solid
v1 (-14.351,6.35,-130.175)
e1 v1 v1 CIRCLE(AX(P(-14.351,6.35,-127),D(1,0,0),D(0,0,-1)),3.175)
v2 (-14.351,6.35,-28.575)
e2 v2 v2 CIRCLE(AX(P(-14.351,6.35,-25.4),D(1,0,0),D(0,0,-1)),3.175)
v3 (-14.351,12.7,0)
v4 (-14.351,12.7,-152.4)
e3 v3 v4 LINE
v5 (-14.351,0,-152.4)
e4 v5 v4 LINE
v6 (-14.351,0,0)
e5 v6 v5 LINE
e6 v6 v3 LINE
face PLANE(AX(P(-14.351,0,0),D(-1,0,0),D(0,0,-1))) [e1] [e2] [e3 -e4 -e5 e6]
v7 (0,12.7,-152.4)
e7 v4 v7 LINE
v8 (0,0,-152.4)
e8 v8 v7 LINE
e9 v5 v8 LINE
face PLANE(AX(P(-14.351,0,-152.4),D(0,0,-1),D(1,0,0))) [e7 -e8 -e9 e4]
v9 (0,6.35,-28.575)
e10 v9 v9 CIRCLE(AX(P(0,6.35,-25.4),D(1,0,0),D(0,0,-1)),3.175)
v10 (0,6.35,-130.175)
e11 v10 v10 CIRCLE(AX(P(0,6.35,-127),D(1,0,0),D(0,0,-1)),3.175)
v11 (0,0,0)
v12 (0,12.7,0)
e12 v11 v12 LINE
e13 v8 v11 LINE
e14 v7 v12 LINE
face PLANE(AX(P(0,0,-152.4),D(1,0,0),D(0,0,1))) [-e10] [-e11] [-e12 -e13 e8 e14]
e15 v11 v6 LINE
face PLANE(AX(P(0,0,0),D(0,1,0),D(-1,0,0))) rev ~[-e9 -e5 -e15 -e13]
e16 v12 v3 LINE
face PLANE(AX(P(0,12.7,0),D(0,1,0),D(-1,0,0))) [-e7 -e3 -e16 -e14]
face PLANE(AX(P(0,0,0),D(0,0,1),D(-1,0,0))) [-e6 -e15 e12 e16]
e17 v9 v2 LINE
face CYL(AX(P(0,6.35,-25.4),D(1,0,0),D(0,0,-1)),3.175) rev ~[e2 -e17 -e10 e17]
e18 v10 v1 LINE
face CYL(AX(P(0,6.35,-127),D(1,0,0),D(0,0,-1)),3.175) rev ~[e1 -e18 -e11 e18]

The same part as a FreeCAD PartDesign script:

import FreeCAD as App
import Part
import Sketcher
from FreeCAD import Vector
Q = App.Units.Quantity

doc = App.newDocument("Part")
body = doc.addObject("PartDesign::Body", "Body")

sketch1 = doc.addObject("Sketcher::SketchObject", "Sketch")
body.addObject(sketch1)
sketch1.AttachmentSupport = (doc.XZ_Plane, [""])
sketch1.MapMode = "FlatFace"
sketch1.addGeometry([
    Part.LineSegment(Vector(-14, 0, 0), Vector(0, 0, 0)),
    Part.LineSegment(Vector(0, 0, 0), Vector(0, -152, 0)),
    Part.LineSegment(Vector(0, -152, 0), Vector(-14, -152, 0)),
    Part.LineSegment(Vector(-14, -152, 0), Vector(-14, 0, 0)),
], False)
sketch1.addConstraint([
    Sketcher.Constraint("Coincident", 0, 2, 1, 1),
    Sketcher.Constraint("Coincident", 1, 2, 2, 1),
    Sketcher.Constraint("Coincident", 2, 2, 3, 1),
    Sketcher.Constraint("Coincident", 3, 2, 0, 1),
    Sketcher.Constraint("Horizontal", 0),
    Sketcher.Constraint("Vertical", 1),
    Sketcher.Constraint("Horizontal", 2),
    Sketcher.Constraint("Vertical", 3),
    Sketcher.Constraint("Coincident", 0, 2, -1, 1),
    Sketcher.Constraint("DistanceY", 1, 2, 1, 1, Q("6 in")),
    Sketcher.Constraint("DistanceX", 0, 1, 0, 2, Q("0.565 in")),
])
pad1 = doc.addObject("PartDesign::Pad", "Pad")
body.addObject(pad1)
pad1.Profile = sketch1
pad1.Length = Q("0.5 in")
pad1.Reversed = True

sketch2 = doc.addObject("Sketcher::SketchObject", "Sketch001")
body.addObject(sketch2)
sketch2.AttachmentSupport = (doc.YZ_Plane, [""])
sketch2.MapMode = "FlatFace"
sketch2.addGeometry([
    Part.Circle(Vector(6.3, -25.4, 0), Vector(0, 0, 1), 3.2),
    Part.Circle(Vector(6.3, -127, 0), Vector(0, 0, 1), 3.2),
], False)
sketch2.addConstraint([
    Sketcher.Constraint("Equal", 0, 1),
    Sketcher.Constraint("Vertical", 0, 3, 1, 3),
    Sketcher.Constraint("Diameter", 0, Q("0.25 in")),
    Sketcher.Constraint("DistanceY", 0, 3, -1, 1, Q("1 in")),
    Sketcher.Constraint("DistanceY", 1, 3, 0, 3, Q("4 in")),
    Sketcher.Constraint("DistanceX", -1, 1, 0, 3, Q("0.25 in")),
])
pocket1 = doc.addObject("PartDesign::Pocket", "Pocket")
body.addObject(pocket1)
pocket1.Profile = sketch2
pocket1.Type = "ThroughAll"

doc.recompute()
